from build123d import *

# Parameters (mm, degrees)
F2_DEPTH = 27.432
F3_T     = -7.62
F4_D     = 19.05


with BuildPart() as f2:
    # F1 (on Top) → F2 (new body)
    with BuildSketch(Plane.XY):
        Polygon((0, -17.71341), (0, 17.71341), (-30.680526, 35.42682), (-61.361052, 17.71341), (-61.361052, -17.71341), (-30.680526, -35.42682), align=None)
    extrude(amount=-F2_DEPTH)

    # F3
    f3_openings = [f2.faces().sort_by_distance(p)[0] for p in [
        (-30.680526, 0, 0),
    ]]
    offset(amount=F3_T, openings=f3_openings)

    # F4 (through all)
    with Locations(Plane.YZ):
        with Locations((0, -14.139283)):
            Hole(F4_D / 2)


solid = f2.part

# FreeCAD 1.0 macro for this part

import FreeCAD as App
import Part
import Sketcher
Q = App.Units.Quantity


def faces_at(feature, points):
    """Names of the faces that lie closest to the given points."""
    faces = feature.Shape.Faces
    near = lambda p: min(range(len(faces)), key=lambda i: faces[i].distToShape(Part.Vertex(*p))[0])
    return sorted({f"Face{near(p) + 1}" for p in points})

doc = App.newDocument("Part")
params = doc.addObject("Spreadsheet::Sheet", "Params")
for row, (alias, value) in enumerate([
    ("pad1_length", "1.08 in"),
    ("thickness_wall", "0.3 in"),
    ("sketch2_diameter", "0.75 in"),
    ("hole_diameter", "0.75 in"),
], start=1):
    params.set(f"A{row}", alias)
    params.set(f"B{row}", "=" + value)
    params.setAlias(f"B{row}", alias)

body = doc.addObject("PartDesign::Body", "Body")

# Sketch on XY plane
sketch1 = body.newObject("Sketcher::SketchObject", "Sketch")
sketch1.AttachmentSupport = (doc.getObject("XY_Plane"), [""])
sketch1.MapMode = "FlatFace"
sketch1.addGeometry(Part.LineSegment(App.Vector(0, -18, 0), App.Vector(0, 18, 0)), False)
sketch1.addGeometry(Part.LineSegment(App.Vector(0, 18, 0), App.Vector(-31, 35, 0)), False)
sketch1.addGeometry(Part.LineSegment(App.Vector(-31, 35, 0), App.Vector(-61, 18, 0)), False)
sketch1.addGeometry(Part.LineSegment(App.Vector(-61, 18, 0), App.Vector(-61, -18, 0)), False)
sketch1.addGeometry(Part.LineSegment(App.Vector(-61, -18, 0), App.Vector(-31, -35, 0)), False)
sketch1.addGeometry(Part.LineSegment(App.Vector(-31, -35, 0), App.Vector(0, -18, 0)), False)
sketch1.addConstraint(Sketcher.Constraint("Coincident", 0, 2, 1, 1))
sketch1.addConstraint(Sketcher.Constraint("Coincident", 1, 2, 2, 1))
sketch1.addConstraint(Sketcher.Constraint("Coincident", 2, 2, 3, 1))
sketch1.addConstraint(Sketcher.Constraint("Coincident", 3, 2, 4, 1))
sketch1.addConstraint(Sketcher.Constraint("Coincident", 4, 2, 5, 1))
sketch1.addConstraint(Sketcher.Constraint("Coincident", 5, 2, 0, 1))
sketch1.addConstraint(Sketcher.Constraint("Vertical", 0))
sketch1.addConstraint(Sketcher.Constraint("Vertical", 3))
sketch1.addConstraint(Sketcher.Constraint("Symmetric", 0, 2, 5, 2, -1, 1))
sketch1.addConstraint(Sketcher.Constraint("Symmetric", 1, 2, 4, 2, -1))
sketch1.addConstraint(Sketcher.Constraint("Parallel", 1, 4))
sketch1.addConstraint(Sketcher.Constraint("Parallel", 2, 5))
sketch1.addConstraint(Sketcher.Constraint("Horizontal", 0, 2, 2, 2))
sketch1.addConstraint(Sketcher.Constraint("Angle", 1, Q("150 deg")))
sketch1.addConstraint(Sketcher.Constraint("DistanceY", 0, 1, 0, 2, Q("35.42682 mm")))
sketch1.addConstraint(Sketcher.Constraint("Distance", 1, Q("35.42682 mm")))
pad1 = body.newObject("PartDesign::Pad", "Pad")
pad1.Profile = sketch1
pad1.setExpression("Length", "Params.pad1_length")
pad1.Reversed = True
doc.recompute()

thickness = body.newObject("PartDesign::Thickness", "Thickness")
thickness.Base = (pad1, faces_at(pad1, [(-30.681, 0, 0)]))
thickness.setExpression("Value", "Params.thickness_wall")
thickness.Reversed = True
thickness.Join = "Arc"

# Sketch on YZ plane
sketch2 = body.newObject("Sketcher::SketchObject", "Sketch001")
sketch2.AttachmentSupport = (doc.getObject("YZ_Plane"), [""])
sketch2.MapMode = "FlatFace"
sketch2.addGeometry(Part.Circle(App.Vector(0, -14, 0), App.Vector(0, 0, 1), 10), False)
sketch2.addConstraint(Sketcher.Constraint("PointOnObject", 0, 3, -2))
sketch2.addConstraint(Sketcher.Constraint("Diameter", 0, Q("0.75 in")))
sketch2.addConstraint(Sketcher.Constraint("DistanceY", 0, 3, -1, 1, Q("14.139283 mm")))
sketch2.setExpression("Constraints[1]", "Params.sketch2_diameter")
doc.recompute()
hole = body.newObject("PartDesign::Hole", "Hole")
hole.Profile = sketch2
hole.ThreadType = "None"
hole.setExpression("Diameter", "Params.hole_diameter")
hole.DepthType = "ThroughAll"

doc.recompute()
